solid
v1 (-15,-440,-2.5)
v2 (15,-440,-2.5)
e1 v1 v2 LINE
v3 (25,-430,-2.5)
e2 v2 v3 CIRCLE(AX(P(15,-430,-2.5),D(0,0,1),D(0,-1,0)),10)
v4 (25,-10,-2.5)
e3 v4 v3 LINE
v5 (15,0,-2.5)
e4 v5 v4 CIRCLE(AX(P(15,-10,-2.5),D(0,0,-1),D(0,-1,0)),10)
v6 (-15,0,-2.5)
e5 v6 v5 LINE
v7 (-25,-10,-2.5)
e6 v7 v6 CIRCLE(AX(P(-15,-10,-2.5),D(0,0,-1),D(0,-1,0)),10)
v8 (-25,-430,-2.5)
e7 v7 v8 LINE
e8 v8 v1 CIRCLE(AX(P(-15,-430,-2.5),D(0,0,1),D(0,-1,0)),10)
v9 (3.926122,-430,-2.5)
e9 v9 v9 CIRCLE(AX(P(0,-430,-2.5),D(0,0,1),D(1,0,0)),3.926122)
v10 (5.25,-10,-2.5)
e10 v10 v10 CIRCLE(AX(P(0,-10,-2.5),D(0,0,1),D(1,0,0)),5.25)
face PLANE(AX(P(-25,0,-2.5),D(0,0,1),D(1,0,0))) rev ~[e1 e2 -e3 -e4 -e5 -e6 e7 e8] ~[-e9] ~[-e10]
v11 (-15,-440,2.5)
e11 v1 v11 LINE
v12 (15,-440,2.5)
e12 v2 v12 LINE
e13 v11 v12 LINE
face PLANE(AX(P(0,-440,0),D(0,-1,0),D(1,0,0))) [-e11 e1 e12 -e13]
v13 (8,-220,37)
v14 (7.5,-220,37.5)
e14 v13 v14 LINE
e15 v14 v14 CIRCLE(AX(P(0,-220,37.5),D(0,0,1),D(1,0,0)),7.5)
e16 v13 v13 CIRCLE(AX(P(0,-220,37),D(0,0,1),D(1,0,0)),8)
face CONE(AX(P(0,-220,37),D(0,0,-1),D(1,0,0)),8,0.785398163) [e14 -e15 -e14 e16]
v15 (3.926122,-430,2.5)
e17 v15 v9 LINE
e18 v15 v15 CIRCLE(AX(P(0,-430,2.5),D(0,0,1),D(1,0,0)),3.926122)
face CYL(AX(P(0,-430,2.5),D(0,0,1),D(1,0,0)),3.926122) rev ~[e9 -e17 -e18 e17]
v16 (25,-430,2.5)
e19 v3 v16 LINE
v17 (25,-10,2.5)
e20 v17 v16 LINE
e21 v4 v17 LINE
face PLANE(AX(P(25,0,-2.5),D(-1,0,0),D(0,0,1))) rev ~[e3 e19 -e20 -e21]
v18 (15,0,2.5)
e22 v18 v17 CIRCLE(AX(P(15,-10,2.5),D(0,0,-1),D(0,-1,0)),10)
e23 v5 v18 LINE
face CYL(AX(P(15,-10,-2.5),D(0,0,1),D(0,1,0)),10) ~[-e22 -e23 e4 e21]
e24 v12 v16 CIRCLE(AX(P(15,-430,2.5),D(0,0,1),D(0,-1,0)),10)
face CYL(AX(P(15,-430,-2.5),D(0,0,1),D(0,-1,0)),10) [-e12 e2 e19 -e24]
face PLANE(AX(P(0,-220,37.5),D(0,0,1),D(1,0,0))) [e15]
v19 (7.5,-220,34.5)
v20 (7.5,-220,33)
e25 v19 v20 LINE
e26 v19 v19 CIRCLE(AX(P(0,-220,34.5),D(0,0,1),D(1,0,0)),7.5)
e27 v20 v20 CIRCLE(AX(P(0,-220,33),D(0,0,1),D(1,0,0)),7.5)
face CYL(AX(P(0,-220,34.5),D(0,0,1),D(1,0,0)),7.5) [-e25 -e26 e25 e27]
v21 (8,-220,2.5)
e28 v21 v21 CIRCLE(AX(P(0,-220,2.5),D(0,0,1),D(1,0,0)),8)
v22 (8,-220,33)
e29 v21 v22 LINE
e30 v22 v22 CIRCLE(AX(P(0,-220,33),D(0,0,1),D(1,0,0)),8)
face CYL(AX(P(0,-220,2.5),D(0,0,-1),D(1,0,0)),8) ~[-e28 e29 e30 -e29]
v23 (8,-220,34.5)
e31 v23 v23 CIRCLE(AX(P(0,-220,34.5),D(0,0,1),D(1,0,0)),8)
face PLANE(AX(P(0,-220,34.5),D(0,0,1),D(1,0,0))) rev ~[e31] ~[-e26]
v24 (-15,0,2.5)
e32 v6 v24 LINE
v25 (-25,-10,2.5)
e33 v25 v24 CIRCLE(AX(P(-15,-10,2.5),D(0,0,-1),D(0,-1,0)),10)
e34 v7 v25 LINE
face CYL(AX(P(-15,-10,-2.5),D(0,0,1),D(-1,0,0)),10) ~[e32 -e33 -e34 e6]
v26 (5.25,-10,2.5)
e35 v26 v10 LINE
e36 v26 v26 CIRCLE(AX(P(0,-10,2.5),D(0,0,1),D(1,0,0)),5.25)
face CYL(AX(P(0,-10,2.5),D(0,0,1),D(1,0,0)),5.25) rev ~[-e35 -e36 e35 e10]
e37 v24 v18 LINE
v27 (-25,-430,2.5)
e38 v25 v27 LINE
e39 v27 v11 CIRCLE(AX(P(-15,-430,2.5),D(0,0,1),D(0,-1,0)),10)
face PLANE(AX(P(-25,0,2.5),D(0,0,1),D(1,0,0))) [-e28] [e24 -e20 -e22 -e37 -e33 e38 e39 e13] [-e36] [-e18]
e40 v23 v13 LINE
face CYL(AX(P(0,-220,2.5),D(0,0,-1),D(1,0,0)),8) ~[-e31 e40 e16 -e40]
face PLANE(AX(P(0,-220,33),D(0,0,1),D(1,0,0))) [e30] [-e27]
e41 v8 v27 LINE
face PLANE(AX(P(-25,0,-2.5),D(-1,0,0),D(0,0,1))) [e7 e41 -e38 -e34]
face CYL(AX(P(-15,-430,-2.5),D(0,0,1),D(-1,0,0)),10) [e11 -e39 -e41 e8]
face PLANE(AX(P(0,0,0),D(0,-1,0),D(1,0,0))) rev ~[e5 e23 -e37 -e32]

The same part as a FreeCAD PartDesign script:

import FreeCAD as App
import Part
import Sketcher
Q = App.Units.Quantity


def edges_at(feature, points):
    """Names of the edges that pass closest to the given points."""
    edges = feature.Shape.Edges
    near = lambda p: min(range(len(edges)), key=lambda i: edges[i].distToShape(Part.Vertex(*p))[0])
    return sorted({f"Edge{near(p) + 1}" for p in points})

doc = App.newDocument("Part")
body = doc.addObject("PartDesign::Body", "Body")

# Sketch on XZ plane
sketch1 = body.newObject("Sketcher::SketchObject", "Sketch")
sketch1.AttachmentSupport = (doc.getObject("XZ_Plane"), [""])
sketch1.MapMode = "FlatFace"
sketch1.addGeometry(Part.LineSegment(App.Vector(-25, 2.5, 0), App.Vector(-25, -2.5, 0)), False)
sketch1.addGeometry(Part.LineSegment(App.Vector(-25, -2.5, 0), App.Vector(25, -2.5, 0)), False)
sketch1.addGeometry(Part.LineSegment(App.Vector(25, -2.5, 0), App.Vector(25, 2.5, 0)), False)
sketch1.addGeometry(Part.LineSegment(App.Vector(25, 2.5, 0), App.Vector(-25, 2.5, 0)), False)
sketch1.addConstraint(Sketcher.Constraint("Coincident", 0, 2, 1, 1))
sketch1.addConstraint(Sketcher.Constraint("Coincident", 1, 2, 2, 1))
sketch1.addConstraint(Sketcher.Constraint("Coincident", 2, 2, 3, 1))
sketch1.addConstraint(Sketcher.Constraint("Coincident", 3, 2, 0, 1))
sketch1.addConstraint(Sketcher.Constraint("Vertical", 0))
sketch1.addConstraint(Sketcher.Constraint("Horizontal", 1))
sketch1.addConstraint(Sketcher.Constraint("Vertical", 2))
sketch1.addConstraint(Sketcher.Constraint("Horizontal", 3))
sketch1.addConstraint(Sketcher.Constraint("Symmetric", 0, 2, 2, 2, -1, 1))
sketch1.addConstraint(Sketcher.Constraint("DistanceX", 1, 1, 1, 2, Q("50 mm")))
sketch1.addConstraint(Sketcher.Constraint("DistanceY", 0, 2, 0, 1, Q("5 mm")))
pad1 = body.newObject("PartDesign::Pad", "Pad")
pad1.Profile = sketch1
pad1.Length = 440

# Sketch on XY plane
sketch2 = body.newObject("Sketcher::SketchObject", "Sketch001")
sketch2.AttachmentSupport = (doc.getObject("XY_Plane"), [""])
sketch2.MapMode = "FlatFace"
sketch2.AttachmentOffset = App.Placement(App.Vector(0, 0, 2.5), App.Rotation())
sketch2.addGeometry(Part.Circle(App.Vector(0, -10, 0), App.Vector(0, 0, 1), 5.25), False)
sketch2.addGeometry(Part.Circle(App.Vector(0, -430, 0), App.Vector(0, 0, 1), 3.926122), False)
sketch2.addConstraint(Sketcher.Constraint("PointOnObject", 0, 3, -2))
sketch2.addConstraint(Sketcher.Constraint("PointOnObject", 1, 3, -2))
sketch2.addConstraint(Sketcher.Constraint("Diameter", 0, Q("10.5 mm")))
sketch2.addConstraint(Sketcher.Constraint("DistanceY", 0, 3, -1, 1, Q("10 mm")))
sketch2.addConstraint(Sketcher.Constraint("DistanceY", 1, 3, -1, 1, Q("430 mm")))
sketch2.addConstraint(Sketcher.Constraint("Diameter", 1, Q("7.852243 mm")))
pocket1 = body.newObject("PartDesign::Pocket", "Pocket")
pocket1.Profile = sketch2
pocket1.Type = "ThroughAll"

# Sketch on XY plane
sketch3 = body.newObject("Sketcher::SketchObject", "Sketch002")
sketch3.AttachmentSupport = (doc.getObject("XY_Plane"), [""])
sketch3.MapMode = "FlatFace"
sketch3.AttachmentOffset = App.Placement(App.Vector(0, 0, 2.5), App.Rotation())
sketch3.addGeometry(Part.Circle(App.Vector(0, -220, 0), App.Vector(0, 0, 1), 8), False)
sketch3.addConstraint(Sketcher.Constraint("PointOnObject", 0, 3, -2))
sketch3.addConstraint(Sketcher.Constraint("Diameter", 0, Q("16 mm")))
sketch3.addConstraint(Sketcher.Constraint("DistanceY", 0, 3, -1, 1, Q("220 mm")))
pad2 = body.newObject("PartDesign::Pad", "Pad001")
pad2.Profile = sketch3
pad2.Length = 35
doc.recompute()

fillet = body.newObject("PartDesign::Fillet", "Fillet")
fillet.Base = (pad2, edges_at(pad2, [
    (-25, -440, 0),
    (25, -440, 0),
    (25, 0, 0),
    (-25, 0, 0),
]))
fillet.Radius = 10

# Sketch on XY plane
sketch4 = body.newObject("Sketcher::SketchObject", "Sketch003")
sketch4.AttachmentSupport = (doc.getObject("XY_Plane"), [""])
sketch4.MapMode = "FlatFace"
sketch4.AttachmentOffset = App.Placement(App.Vector(0, 0, 34.5), App.Rotation())
sketch4.addGeometry(Part.Circle(App.Vector(0, -220, 0), App.Vector(0, 0, 1), 8), False)
sketch4.addGeometry(Part.Circle(App.Vector(0, -220, 0), App.Vector(0, 0, 1), 7.5), False)
sketch4.addConstraint(Sketcher.Constraint("Coincident", 1, 3, 0, 3))
sketch4.addConstraint(Sketcher.Constraint("PointOnObject", 0, 3, -2))
sketch4.addConstraint(Sketcher.Constraint("Diameter", 0, Q("16 mm")))
sketch4.addConstraint(Sketcher.Constraint("Diameter", 1, Q("15 mm")))
sketch4.addConstraint(Sketcher.Constraint("DistanceY", 0, 3, -1, 1, Q("220 mm")))
pocket2 = body.newObject("PartDesign::Pocket", "Pocket001")
pocket2.Profile = sketch4
pocket2.Length = 1.5
doc.recompute()

chamfer = body.newObject("PartDesign::Chamfer", "Chamfer")
chamfer.Base = (pocket2, edges_at(pocket2, [(-8, -220, 37.5)]))
chamfer.Size = 0.5

doc.recompute()
